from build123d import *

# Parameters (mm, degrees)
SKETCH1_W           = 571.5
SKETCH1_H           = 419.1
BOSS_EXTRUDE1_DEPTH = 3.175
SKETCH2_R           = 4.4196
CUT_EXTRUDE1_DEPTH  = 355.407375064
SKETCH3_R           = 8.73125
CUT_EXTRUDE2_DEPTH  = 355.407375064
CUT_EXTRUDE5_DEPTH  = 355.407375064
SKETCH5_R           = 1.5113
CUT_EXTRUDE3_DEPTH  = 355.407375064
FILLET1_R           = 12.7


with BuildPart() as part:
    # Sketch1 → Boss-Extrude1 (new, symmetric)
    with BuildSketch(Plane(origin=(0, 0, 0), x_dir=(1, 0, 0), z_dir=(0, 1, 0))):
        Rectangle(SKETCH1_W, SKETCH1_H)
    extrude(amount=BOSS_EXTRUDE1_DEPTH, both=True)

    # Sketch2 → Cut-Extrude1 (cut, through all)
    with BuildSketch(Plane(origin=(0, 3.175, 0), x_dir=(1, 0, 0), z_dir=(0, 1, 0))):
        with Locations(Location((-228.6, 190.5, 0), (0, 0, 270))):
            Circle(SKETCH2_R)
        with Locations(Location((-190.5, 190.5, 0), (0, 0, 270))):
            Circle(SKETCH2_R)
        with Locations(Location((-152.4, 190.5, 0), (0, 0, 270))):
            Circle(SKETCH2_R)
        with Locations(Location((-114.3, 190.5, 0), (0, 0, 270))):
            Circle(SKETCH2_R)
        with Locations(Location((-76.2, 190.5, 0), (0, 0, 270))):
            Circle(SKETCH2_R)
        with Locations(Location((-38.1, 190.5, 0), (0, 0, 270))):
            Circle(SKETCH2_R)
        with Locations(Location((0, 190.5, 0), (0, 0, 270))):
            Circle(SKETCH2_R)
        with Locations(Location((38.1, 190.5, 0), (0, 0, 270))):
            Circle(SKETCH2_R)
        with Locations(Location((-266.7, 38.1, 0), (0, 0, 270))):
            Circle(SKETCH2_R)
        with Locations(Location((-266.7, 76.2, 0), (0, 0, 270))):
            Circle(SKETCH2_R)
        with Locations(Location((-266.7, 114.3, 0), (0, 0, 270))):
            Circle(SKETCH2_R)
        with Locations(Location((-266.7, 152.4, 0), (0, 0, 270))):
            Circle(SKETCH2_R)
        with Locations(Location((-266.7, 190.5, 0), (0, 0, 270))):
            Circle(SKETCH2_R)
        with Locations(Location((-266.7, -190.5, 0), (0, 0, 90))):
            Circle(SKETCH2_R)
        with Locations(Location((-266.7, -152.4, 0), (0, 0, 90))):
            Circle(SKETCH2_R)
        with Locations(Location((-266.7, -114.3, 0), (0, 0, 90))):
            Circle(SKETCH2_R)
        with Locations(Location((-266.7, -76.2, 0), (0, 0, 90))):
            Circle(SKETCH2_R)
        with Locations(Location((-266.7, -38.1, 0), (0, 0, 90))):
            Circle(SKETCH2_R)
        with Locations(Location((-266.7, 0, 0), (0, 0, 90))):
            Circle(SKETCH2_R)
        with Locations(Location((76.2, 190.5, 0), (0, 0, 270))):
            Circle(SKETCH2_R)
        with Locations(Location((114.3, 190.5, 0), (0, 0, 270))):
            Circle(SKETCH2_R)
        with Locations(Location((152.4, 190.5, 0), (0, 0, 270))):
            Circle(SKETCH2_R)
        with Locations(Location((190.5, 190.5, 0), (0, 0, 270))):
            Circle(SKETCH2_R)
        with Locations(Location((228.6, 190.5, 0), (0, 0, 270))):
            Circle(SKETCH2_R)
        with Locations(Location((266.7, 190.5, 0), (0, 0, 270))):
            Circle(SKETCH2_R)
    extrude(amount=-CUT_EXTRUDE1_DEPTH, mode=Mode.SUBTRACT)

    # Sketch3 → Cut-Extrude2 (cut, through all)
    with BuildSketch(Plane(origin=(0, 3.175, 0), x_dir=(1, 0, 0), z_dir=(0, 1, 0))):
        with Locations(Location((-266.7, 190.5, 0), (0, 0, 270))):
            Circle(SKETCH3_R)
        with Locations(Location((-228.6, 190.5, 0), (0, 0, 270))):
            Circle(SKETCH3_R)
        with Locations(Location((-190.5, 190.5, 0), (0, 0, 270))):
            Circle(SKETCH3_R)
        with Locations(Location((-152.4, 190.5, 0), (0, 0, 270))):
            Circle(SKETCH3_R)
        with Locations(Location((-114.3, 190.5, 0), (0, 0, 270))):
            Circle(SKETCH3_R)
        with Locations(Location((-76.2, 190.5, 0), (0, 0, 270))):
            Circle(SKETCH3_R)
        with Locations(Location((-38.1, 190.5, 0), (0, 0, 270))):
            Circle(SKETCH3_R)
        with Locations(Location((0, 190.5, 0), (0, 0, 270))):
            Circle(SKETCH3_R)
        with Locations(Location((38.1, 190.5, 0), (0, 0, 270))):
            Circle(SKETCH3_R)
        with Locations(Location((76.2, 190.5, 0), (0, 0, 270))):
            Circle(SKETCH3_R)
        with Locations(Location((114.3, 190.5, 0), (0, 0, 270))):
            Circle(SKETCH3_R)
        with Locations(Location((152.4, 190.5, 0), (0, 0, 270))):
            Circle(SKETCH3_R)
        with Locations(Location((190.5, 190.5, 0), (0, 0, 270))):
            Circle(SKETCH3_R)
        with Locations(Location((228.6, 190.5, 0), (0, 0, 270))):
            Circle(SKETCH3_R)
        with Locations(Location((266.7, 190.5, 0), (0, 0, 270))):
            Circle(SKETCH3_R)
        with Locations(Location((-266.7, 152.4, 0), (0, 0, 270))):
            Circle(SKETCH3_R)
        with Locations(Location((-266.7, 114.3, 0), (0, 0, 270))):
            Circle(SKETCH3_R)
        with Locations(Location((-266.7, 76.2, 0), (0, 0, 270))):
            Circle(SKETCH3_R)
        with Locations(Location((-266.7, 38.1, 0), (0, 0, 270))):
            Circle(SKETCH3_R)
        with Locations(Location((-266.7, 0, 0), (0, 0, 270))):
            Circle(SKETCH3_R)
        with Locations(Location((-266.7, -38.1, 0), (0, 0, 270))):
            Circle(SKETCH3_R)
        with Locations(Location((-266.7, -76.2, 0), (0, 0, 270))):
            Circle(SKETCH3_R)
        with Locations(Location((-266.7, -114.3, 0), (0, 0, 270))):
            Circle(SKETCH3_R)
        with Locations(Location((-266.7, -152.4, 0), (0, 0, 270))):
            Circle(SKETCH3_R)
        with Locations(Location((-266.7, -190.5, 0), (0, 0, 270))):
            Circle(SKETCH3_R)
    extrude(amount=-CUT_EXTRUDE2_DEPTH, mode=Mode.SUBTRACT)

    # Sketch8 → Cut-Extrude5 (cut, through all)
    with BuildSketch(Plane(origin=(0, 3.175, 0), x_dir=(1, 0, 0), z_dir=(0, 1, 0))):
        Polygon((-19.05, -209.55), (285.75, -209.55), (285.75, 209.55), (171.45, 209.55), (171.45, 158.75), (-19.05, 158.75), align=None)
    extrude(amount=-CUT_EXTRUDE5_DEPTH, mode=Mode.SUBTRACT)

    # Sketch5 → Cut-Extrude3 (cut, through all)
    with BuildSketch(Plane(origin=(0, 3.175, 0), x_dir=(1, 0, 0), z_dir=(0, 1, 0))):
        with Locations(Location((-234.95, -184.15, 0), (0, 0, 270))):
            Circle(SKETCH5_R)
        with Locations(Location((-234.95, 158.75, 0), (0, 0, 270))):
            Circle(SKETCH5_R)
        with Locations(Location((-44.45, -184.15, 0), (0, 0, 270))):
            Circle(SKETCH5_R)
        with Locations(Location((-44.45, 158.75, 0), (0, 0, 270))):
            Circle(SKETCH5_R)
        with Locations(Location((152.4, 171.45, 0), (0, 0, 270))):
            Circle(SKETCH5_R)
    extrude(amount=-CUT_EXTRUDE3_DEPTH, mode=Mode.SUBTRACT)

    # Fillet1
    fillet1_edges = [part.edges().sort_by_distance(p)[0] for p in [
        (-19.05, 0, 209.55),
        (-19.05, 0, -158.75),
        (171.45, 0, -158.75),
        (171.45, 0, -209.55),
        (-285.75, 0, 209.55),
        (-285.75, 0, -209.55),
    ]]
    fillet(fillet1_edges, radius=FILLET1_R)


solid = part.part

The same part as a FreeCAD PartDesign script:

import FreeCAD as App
import Part
import Sketcher

V = App.Vector
Q = App.Units.Quantity


def edges_at(feature, points):
    """Names of the edges that pass closest to the given points."""
    edges = feature.Shape.Edges
    near = lambda p: min(range(len(edges)), key=lambda i: edges[i].distToShape(Part.Vertex(*p))[0])
    return sorted({f"Edge{near(p) + 1}" for p in points})

doc = App.newDocument("Part")
params = doc.addObject("Spreadsheet::Sheet", "Params")
for row, (alias, value) in enumerate([
    ("sketch1_width", "22.5 in"),
    ("sketch1_height", "16.5 in"),
    ("pad1_length", "0.25 in"),
    ("sketch2_diameter", "0.348 in"),
    ("sketch3_diameter", "0.6875 in"),
    ("sketch4_width", "12 in"),
    ("sketch4_height", "2 in"),
    ("sketch4_width2", "4.5 in"),
    ("sketch4_height2", "16.5 in"),
    ("sketch5_diameter", "0.119 in"),
    ("fillet_radius", "0.5 in"),
], start=1):
    params.set(f"A{row}", alias)
    params.set(f"B{row}", "=" + value)
    params.setAlias(f"B{row}", alias)

body = doc.addObject("PartDesign::Body", "Body")

sketch1 = body.newObject("Sketcher::SketchObject", "Sketch")
sketch1.AttachmentSupport = (doc.getObject("XZ_Plane"), [""])
sketch1.MapMode = "FlatFace"
sketch1.addGeometry([
    Part.LineSegment(V(-286, -210, 0), V(-286, 210, 0)),
    Part.LineSegment(V(-286, 210, 0), V(286, 210, 0)),
    Part.LineSegment(V(286, 210, 0), V(286, -210, 0)),
    Part.LineSegment(V(286, -210, 0), V(-286, -210, 0)),
], False)
sketch1.addConstraint([
    Sketcher.Constraint("Coincident", 0, 2, 1, 1),
    Sketcher.Constraint("Coincident", 1, 2, 2, 1),
    Sketcher.Constraint("Coincident", 2, 2, 3, 1),
    Sketcher.Constraint("Coincident", 3, 2, 0, 1),
    Sketcher.Constraint("Vertical", 0),
    Sketcher.Constraint("Horizontal", 1),
    Sketcher.Constraint("Vertical", 2),
    Sketcher.Constraint("Horizontal", 3),
    Sketcher.Constraint("Symmetric", 0, 2, 2, 2, -1, 1),
    Sketcher.Constraint("DistanceX", 1, 1, 1, 2, Q("22.5 in")),
    Sketcher.Constraint("DistanceY", 0, 1, 0, 2, Q("16.5 in")),
])
sketch1.setExpression("Constraints[9]", "Params.sketch1_width")
sketch1.setExpression("Constraints[10]", "Params.sketch1_height")
pad1 = body.newObject("PartDesign::Pad", "Pad")
pad1.Profile = sketch1
pad1.setExpression("Length", "Params.pad1_length")
pad1.Midplane = True

sketch2 = body.newObject("Sketcher::SketchObject", "Sketch001")
sketch2.AttachmentSupport = (doc.getObject("XZ_Plane"), [""])
sketch2.MapMode = "FlatFace"
sketch2.AttachmentOffset = App.Placement(V(0, 0, -0.125 * 25.4), App.Rotation())
sketch2.addGeometry([
    Part.Circle(V(-228.6, -190.5, 0), V(0, 0, 1), 4.4),
    Part.Circle(V(-190.5, -190.5, 0), V(0, 0, 1), 4.4),
    Part.Circle(V(-152.4, -190.5, 0), V(0, 0, 1), 4.4),
    Part.Circle(V(-114.3, -190.5, 0), V(0, 0, 1), 4.4),
    Part.Circle(V(-76.2, -190.5, 0), V(0, 0, 1), 4.4),
    Part.Circle(V(-38.1, -190.5, 0), V(0, 0, 1), 4.4),
    Part.Circle(V(0, -190.5, 0), V(0, 0, 1), 4.4),
    Part.Circle(V(38.1, -190.5, 0), V(0, 0, 1), 4.4),
    Part.Circle(V(-266.7, -38.1, 0), V(0, 0, 1), 4.4),
    Part.Circle(V(-266.7, -76.2, 0), V(0, 0, 1), 4.4),
    Part.Circle(V(-266.7, -114.3, 0), V(0, 0, 1), 4.4),
    Part.Circle(V(-266.7, -152.4, 0), V(0, 0, 1), 4.4),
    Part.Circle(V(-266.7, -190.5, 0), V(0, 0, 1), 4.4),
    Part.Circle(V(-266.7, 190.5, 0), V(0, 0, 1), 4.4),
    Part.Circle(V(-266.7, 152.4, 0), V(0, 0, 1), 4.4),
    Part.Circle(V(-266.7, 114.3, 0), V(0, 0, 1), 4.4),
    Part.Circle(V(-266.7, 76.2, 0), V(0, 0, 1), 4.4),
    Part.Circle(V(-266.7, 38.1, 0), V(0, 0, 1), 4.4),
    Part.Circle(V(-266.7, 0, 0), V(0, 0, 1), 4.4),
    Part.Circle(V(76.2, -190.5, 0), V(0, 0, 1), 4.4),
    Part.Circle(V(114.3, -190.5, 0), V(0, 0, 1), 4.4),
    Part.Circle(V(152.4, -190.5, 0), V(0, 0, 1), 4.4),
    Part.Circle(V(190.5, -190.5, 0), V(0, 0, 1), 4.4),
    Part.Circle(V(228.6, -190.5, 0), V(0, 0, 1), 4.4),
    Part.Circle(V(266.7, -190.5, 0), V(0, 0, 1), 4.4),
], False)
sketch2.addConstraint([
    Sketcher.Constraint("Equal", 0, 1),
    Sketcher.Constraint("Equal", 1, 2),
    Sketcher.Constraint("Equal", 2, 3),
    Sketcher.Constraint("Equal", 3, 4),
    Sketcher.Constraint("Equal", 4, 5),
    Sketcher.Constraint("Equal", 5, 6),
    Sketcher.Constraint("Equal", 6, 7),
    Sketcher.Constraint("Equal", 7, 8),
    Sketcher.Constraint("Equal", 8, 9),
    Sketcher.Constraint("Equal", 9, 10),
    Sketcher.Constraint("Equal", 10, 11),
    Sketcher.Constraint("Equal", 11, 12),
    Sketcher.Constraint("Equal", 12, 13),
    Sketcher.Constraint("Equal", 13, 14),
    Sketcher.Constraint("Equal", 14, 15),
    Sketcher.Constraint("Equal", 15, 16),
    Sketcher.Constraint("Equal", 16, 17),
    Sketcher.Constraint("Equal", 17, 18),
    Sketcher.Constraint("Equal", 18, 19),
    Sketcher.Constraint("Equal", 19, 20),
    Sketcher.Constraint("Equal", 20, 21),
    Sketcher.Constraint("Equal", 21, 22),
    Sketcher.Constraint("Equal", 22, 23),
    Sketcher.Constraint("Equal", 23, 24),
    Sketcher.Constraint("Symmetric", 13, 3, 24, 3, -1, 1),
    Sketcher.Constraint("Symmetric", 5, 3, 7, 3, -2),
    Sketcher.Constraint("Symmetric", 4, 3, 19, 3, -2),
    Sketcher.Constraint("Symmetric", 3, 3, 20, 3, -2),
    Sketcher.Constraint("Symmetric", 2, 3, 21, 3, -2),
    Sketcher.Constraint("Symmetric", 1, 3, 22, 3, -2),
    Sketcher.Constraint("Symmetric", 0, 3, 23, 3, -2),
    Sketcher.Constraint("Symmetric", 12, 3, 24, 3, -2),
    Sketcher.Constraint("Symmetric", 11, 3, 14, 3, -1),
    Sketcher.Constraint("Symmetric", 10, 3, 15, 3, -1),
    Sketcher.Constraint("Symmetric", 9, 3, 16, 3, -1),
    Sketcher.Constraint("Symmetric", 8, 3, 17, 3, -1),
    Sketcher.Constraint("PointOnObject", 6, 3, -2),
    Sketcher.Constraint("PointOnObject", 18, 3, -1),
    Sketcher.Constraint("Horizontal", 0, 3, 1, 3),
    Sketcher.Constraint("Horizontal", 1, 3, 2, 3),
    Sketcher.Constraint("Horizontal", 2, 3, 3, 3),
    Sketcher.Constraint("Horizontal", 3, 3, 4, 3),
    Sketcher.Constraint("Horizontal", 4, 3, 5, 3),
    Sketcher.Constraint("Horizontal", 5, 3, 6, 3),
    Sketcher.Constraint("Horizontal", 7, 3, 12, 3),
    Sketcher.Constraint("Vertical", 8, 3, 9, 3),
    Sketcher.Constraint("Vertical", 9, 3, 10, 3),
    Sketcher.Constraint("Vertical", 10, 3, 11, 3),
    Sketcher.Constraint("Vertical", 11, 3, 12, 3),
    Sketcher.Constraint("Vertical", 17, 3, 18, 3),
    Sketcher.Constraint("Diameter", 0, Q("0.348 in")),
    Sketcher.Constraint("DistanceX", 0, 3, -1, 1, Q("9 in")),
    Sketcher.Constraint("DistanceX", 2, 3, -1, 1, Q("6 in")),
    Sketcher.Constraint("DistanceX", 4, 3, -1, 1, Q("3 in")),
    Sketcher.Constraint("DistanceY", 9, 3, -1, 1, Q("3 in")),
    Sketcher.Constraint("DistanceY", 11, 3, -1, 1, Q("6 in")),
    Sketcher.Constraint("DistanceX", 1, 3, 3, 3, Q("3 in")),
    Sketcher.Constraint("DistanceX", 3, 3, 5, 3, Q("3 in")),
    Sketcher.Constraint("DistanceX", 5, 3, 7, 3, Q("3 in")),
    Sketcher.Constraint("DistanceY", 0, 3, 8, 3, Q("6 in")),
    Sketcher.Constraint("DistanceX", 8, 3, 1, 3, Q("3 in")),
    Sketcher.Constraint("DistanceY", 10, 3, 8, 3, Q("3 in")),
    Sketcher.Constraint("DistanceY", 8, 3, 13, 3, Q("9 in")),
])
sketch2.setExpression("Constraints[50]", "Params.sketch2_diameter")
pocket1 = body.newObject("PartDesign::Pocket", "Pocket")
pocket1.Profile = sketch2
pocket1.Type = "ThroughAll"
pocket1.Reversed = True

sketch3 = body.newObject("Sketcher::SketchObject", "Sketch002")
sketch3.AttachmentSupport = (doc.getObject("XZ_Plane"), [""])
sketch3.MapMode = "FlatFace"
sketch3.AttachmentOffset = App.Placement(V(0, 0, -0.125 * 25.4), App.Rotation())
sketch3.addGeometry([
    Part.Circle(V(-267, -190, 0), V(0, 0, 1), 9),
    Part.Circle(V(-229, -190, 0), V(0, 0, 1), 9),
    Part.Circle(V(-190, -190, 0), V(0, 0, 1), 9),
    Part.Circle(V(-152, -190, 0), V(0, 0, 1), 9),
    Part.Circle(V(-114, -190, 0), V(0, 0, 1), 9),
    Part.Circle(V(-76, -190, 0), V(0, 0, 1), 9),
    Part.Circle(V(-38, -190, 0), V(0, 0, 1), 9),
    Part.Circle(V(0, -190, 0), V(0, 0, 1), 9),
    Part.Circle(V(38, -190, 0), V(0, 0, 1), 9),
    Part.Circle(V(76, -190, 0), V(0, 0, 1), 9),
    Part.Circle(V(114, -190, 0), V(0, 0, 1), 9),
    Part.Circle(V(152, -190, 0), V(0, 0, 1), 9),
    Part.Circle(V(190, -190, 0), V(0, 0, 1), 9),
    Part.Circle(V(229, -190, 0), V(0, 0, 1), 9),
    Part.Circle(V(267, -190, 0), V(0, 0, 1), 9),
    Part.Circle(V(-267, -152, 0), V(0, 0, 1), 9),
    Part.Circle(V(-267, -114, 0), V(0, 0, 1), 9),
    Part.Circle(V(-267, -76, 0), V(0, 0, 1), 9),
    Part.Circle(V(-267, -38, 0), V(0, 0, 1), 9),
    Part.Circle(V(-267, 0, 0), V(0, 0, 1), 9),
    Part.Circle(V(-267, 38, 0), V(0, 0, 1), 9),
    Part.Circle(V(-267, 76, 0), V(0, 0, 1), 9),
    Part.Circle(V(-267, 114, 0), V(0, 0, 1), 9),
    Part.Circle(V(-267, 152, 0), V(0, 0, 1), 9),
    Part.Circle(V(-267, 190, 0), V(0, 0, 1), 9),
], False)
sketch3.addConstraint([
    Sketcher.Constraint("Equal", 0, 1),
    Sketcher.Constraint("Equal", 1, 2),
    Sketcher.Constraint("Equal", 2, 3),
    Sketcher.Constraint("Equal", 3, 4),
    Sketcher.Constraint("Equal", 4, 5),
    Sketcher.Constraint("Equal", 5, 6),
    Sketcher.Constraint("Equal", 6, 7),
    Sketcher.Constraint("Equal", 7, 8),
    Sketcher.Constraint("Equal", 8, 9),
    Sketcher.Constraint("Equal", 9, 10),
    Sketcher.Constraint("Equal", 10, 11),
    Sketcher.Constraint("Equal", 11, 12),
    Sketcher.Constraint("Equal", 12, 13),
    Sketcher.Constraint("Equal", 13, 14),
    Sketcher.Constraint("Equal", 14, 15),
    Sketcher.Constraint("Equal", 15, 16),
    Sketcher.Constraint("Equal", 16, 17),
    Sketcher.Constraint("Equal", 17, 18),
    Sketcher.Constraint("Equal", 18, 19),
    Sketcher.Constraint("Equal", 19, 20),
    Sketcher.Constraint("Equal", 20, 21),
    Sketcher.Constraint("Equal", 21, 22),
    Sketcher.Constraint("Equal", 22, 23),
    Sketcher.Constraint("Equal", 23, 24),
    Sketcher.Constraint("Symmetric", 14, 3, 24, 3, -1, 1),
    Sketcher.Constraint("Symmetric", 6, 3, 8, 3, -2),
    Sketcher.Constraint("Symmetric", 5, 3, 9, 3, -2),
    Sketcher.Constraint("Symmetric", 4, 3, 10, 3, -2),
    Sketcher.Constraint("Symmetric", 3, 3, 11, 3, -2),
    Sketcher.Constraint("Symmetric", 2, 3, 12, 3, -2),
    Sketcher.Constraint("Symmetric", 1, 3, 13, 3, -2),
    Sketcher.Constraint("Symmetric", 0, 3, 14, 3, -2),
    Sketcher.Constraint("Symmetric", 18, 3, 20, 3, -1),
    Sketcher.Constraint("Symmetric", 17, 3, 21, 3, -1),
    Sketcher.Constraint("Symmetric", 16, 3, 22, 3, -1),
    Sketcher.Constraint("Symmetric", 15, 3, 23, 3, -1),
    Sketcher.Constraint("PointOnObject", 7, 3, -2),
    Sketcher.Constraint("PointOnObject", 19, 3, -1),
    Sketcher.Constraint("Horizontal", 0, 3, 1, 3),
    Sketcher.Constraint("Horizontal", 1, 3, 2, 3),
    Sketcher.Constraint("Horizontal", 2, 3, 3, 3),
    Sketcher.Constraint("Horizontal", 3, 3, 4, 3),
    Sketcher.Constraint("Horizontal", 4, 3, 5, 3),
    Sketcher.Constraint("Horizontal", 5, 3, 6, 3),
    Sketcher.Constraint("Horizontal", 6, 3, 7, 3),
    Sketcher.Constraint("Vertical", 0, 3, 15, 3),
    Sketcher.Constraint("Vertical", 15, 3, 16, 3),
    Sketcher.Constraint("Vertical", 16, 3, 17, 3),
    Sketcher.Constraint("Vertical", 17, 3, 18, 3),
    Sketcher.Constraint("Vertical", 18, 3, 19, 3),
    Sketcher.Constraint("Diameter", 0, Q("0.6875 in")),
    Sketcher.Constraint("DistanceX", 1, 3, -1, 1, Q("9 in")),
    Sketcher.Constraint("DistanceX", 3, 3, -1, 1, Q("6 in")),
    Sketcher.Constraint("DistanceX", 5, 3, -1, 1, Q("3 in")),
    Sketcher.Constraint("DistanceY", 15, 3, -1, 1, Q("6 in")),
    Sketcher.Constraint("DistanceY", 17, 3, -1, 1, Q("3 in")),
    Sketcher.Constraint("DistanceX", 0, 3, 2, 3, Q("3 in")),
    Sketcher.Constraint("DistanceX", 2, 3, 4, 3, Q("3 in")),
    Sketcher.Constraint("DistanceX", 4, 3, 6, 3, Q("3 in")),
    Sketcher.Constraint("DistanceX", 6, 3, 8, 3, Q("3 in")),
    Sketcher.Constraint("DistanceY", 0, 3, 16, 3, Q("3 in")),
    Sketcher.Constraint("DistanceY", 16, 3, 18, 3, Q("3 in")),
    Sketcher.Constraint("DistanceY", 18, 3, 20, 3, Q("3 in")),
])
sketch3.setExpression("Constraints[50]", "Params.sketch3_diameter")
pocket2 = body.newObject("PartDesign::Pocket", "Pocket001")
pocket2.Profile = sketch3
pocket2.Type = "ThroughAll"
pocket2.Reversed = True

sketch4 = body.newObject("Sketcher::SketchObject", "Sketch003")
sketch4.AttachmentSupport = (doc.getObject("XZ_Plane"), [""])
sketch4.MapMode = "FlatFace"
sketch4.AttachmentOffset = App.Placement(V(0, 0, -0.125 * 25.4), App.Rotation())
sketch4.addGeometry([
    Part.LineSegment(V(-19, 210, 0), V(286, 210, 0)),
    Part.LineSegment(V(286, 210, 0), V(286, -210, 0)),
    Part.LineSegment(V(286, -210, 0), V(171, -210, 0)),
    Part.LineSegment(V(171, -210, 0), V(171, -159, 0)),
    Part.LineSegment(V(171, -159, 0), V(-19, -159, 0)),
    Part.LineSegment(V(-19, -159, 0), V(-19, 210, 0)),
], False)
sketch4.addConstraint([
    Sketcher.Constraint("Coincident", 0, 2, 1, 1),
    Sketcher.Constraint("Coincident", 1, 2, 2, 1),
    Sketcher.Constraint("Coincident", 2, 2, 3, 1),
    Sketcher.Constraint("Coincident", 3, 2, 4, 1),
    Sketcher.Constraint("Coincident", 4, 2, 5, 1),
    Sketcher.Constraint("Coincident", 5, 2, 0, 1),
    Sketcher.Constraint("Horizontal", 0),
    Sketcher.Constraint("Vertical", 1),
    Sketcher.Constraint("Horizontal", 2),
    Sketcher.Constraint("Vertical", 3),
    Sketcher.Constraint("Horizontal", 4),
    Sketcher.Constraint("Vertical", 5),
    Sketcher.Constraint("DistanceX", 0, 1, 0, 2, Q("12 in")),
    Sketcher.Constraint("DistanceY", 3, 1, 3, 2, Q("2 in")),
    Sketcher.Constraint("DistanceX", 2, 2, 2, 1, Q("4.5 in")),
    Sketcher.Constraint("DistanceY", 1, 2, 1, 1, Q("16.5 in")),
    Sketcher.Constraint("DistanceX", -1, 1, 0, 2, Q("11.25 in")),
    Sketcher.Constraint("DistanceY", -1, 1, 0, 2, Q("8.25 in")),
])
sketch4.setExpression("Constraints[12]", "Params.sketch4_width")
sketch4.setExpression("Constraints[13]", "Params.sketch4_height")
sketch4.setExpression("Constraints[14]", "Params.sketch4_width2")
sketch4.setExpression("Constraints[15]", "Params.sketch4_height2")
pocket3 = body.newObject("PartDesign::Pocket", "Pocket002")
pocket3.Profile = sketch4
pocket3.Type = "ThroughAll"
pocket3.Reversed = True

sketch5 = body.newObject("Sketcher::SketchObject", "Sketch004")
sketch5.AttachmentSupport = (doc.getObject("XZ_Plane"), [""])
sketch5.MapMode = "FlatFace"
sketch5.AttachmentOffset = App.Placement(V(0, 0, -0.125 * 25.4), App.Rotation())
sketch5.addGeometry([
    Part.Circle(V(-234.9, 184.2, 0), V(0, 0, 1), 1.5),
    Part.Circle(V(-234.9, -158.8, 0), V(0, 0, 1), 1.5),
    Part.Circle(V(-44.5, 184.2, 0), V(0, 0, 1), 1.5),
    Part.Circle(V(-44.5, -158.8, 0), V(0, 0, 1), 1.5),
    Part.Circle(V(152.4, -171.4, 0), V(0, 0, 1), 1.5),
], False)
sketch5.addConstraint([
    Sketcher.Constraint("Equal", 0, 1),
    Sketcher.Constraint("Equal", 1, 2),
    Sketcher.Constraint("Equal", 2, 3),
    Sketcher.Constraint("Equal", 3, 4),
    Sketcher.Constraint("Horizontal", 0, 3, 2, 3),
    Sketcher.Constraint("Horizontal", 1, 3, 3, 3),
    Sketcher.Constraint("Vertical", 0, 3, 1, 3),
    Sketcher.Constraint("Vertical", 2, 3, 3, 3),
    Sketcher.Constraint("Diameter", 0, Q("0.119 in")),
    Sketcher.Constraint("DistanceX", -1, 1, 4, 3, Q("6 in")),
    Sketcher.Constraint("DistanceY", 4, 3, 2, 3, Q("14 in")),
    Sketcher.Constraint("DistanceY", 1, 3, 0, 3, Q("13.5 in")),
    Sketcher.Constraint("DistanceX", 0, 3, 2, 3, Q("7.5 in")),
    Sketcher.Constraint("DistanceX", 0, 3, -1, 1, Q("9.25 in")),
    Sketcher.Constraint("DistanceY", -1, 1, 0, 3, Q("7.25 in")),
])
sketch5.setExpression("Constraints[8]", "Params.sketch5_diameter")
pocket4 = body.newObject("PartDesign::Pocket", "Pocket003")
pocket4.Profile = sketch5
pocket4.Type = "ThroughAll"
pocket4.Reversed = True
doc.recompute()

fillet = body.newObject("PartDesign::Fillet", "Fillet")
fillet.Base = (pocket4, edges_at(pocket4, [
    (-19.05, 0, 209.55),
    (-19.05, 0, -158.75),
    (171.45, 0, -158.75),
    (171.45, 0, -209.55),
    (-285.75, 0, 209.55),
    (-285.75, 0, -209.55),
]))
fillet.setExpression("Radius", "Params.fillet_radius")

doc.recompute()
